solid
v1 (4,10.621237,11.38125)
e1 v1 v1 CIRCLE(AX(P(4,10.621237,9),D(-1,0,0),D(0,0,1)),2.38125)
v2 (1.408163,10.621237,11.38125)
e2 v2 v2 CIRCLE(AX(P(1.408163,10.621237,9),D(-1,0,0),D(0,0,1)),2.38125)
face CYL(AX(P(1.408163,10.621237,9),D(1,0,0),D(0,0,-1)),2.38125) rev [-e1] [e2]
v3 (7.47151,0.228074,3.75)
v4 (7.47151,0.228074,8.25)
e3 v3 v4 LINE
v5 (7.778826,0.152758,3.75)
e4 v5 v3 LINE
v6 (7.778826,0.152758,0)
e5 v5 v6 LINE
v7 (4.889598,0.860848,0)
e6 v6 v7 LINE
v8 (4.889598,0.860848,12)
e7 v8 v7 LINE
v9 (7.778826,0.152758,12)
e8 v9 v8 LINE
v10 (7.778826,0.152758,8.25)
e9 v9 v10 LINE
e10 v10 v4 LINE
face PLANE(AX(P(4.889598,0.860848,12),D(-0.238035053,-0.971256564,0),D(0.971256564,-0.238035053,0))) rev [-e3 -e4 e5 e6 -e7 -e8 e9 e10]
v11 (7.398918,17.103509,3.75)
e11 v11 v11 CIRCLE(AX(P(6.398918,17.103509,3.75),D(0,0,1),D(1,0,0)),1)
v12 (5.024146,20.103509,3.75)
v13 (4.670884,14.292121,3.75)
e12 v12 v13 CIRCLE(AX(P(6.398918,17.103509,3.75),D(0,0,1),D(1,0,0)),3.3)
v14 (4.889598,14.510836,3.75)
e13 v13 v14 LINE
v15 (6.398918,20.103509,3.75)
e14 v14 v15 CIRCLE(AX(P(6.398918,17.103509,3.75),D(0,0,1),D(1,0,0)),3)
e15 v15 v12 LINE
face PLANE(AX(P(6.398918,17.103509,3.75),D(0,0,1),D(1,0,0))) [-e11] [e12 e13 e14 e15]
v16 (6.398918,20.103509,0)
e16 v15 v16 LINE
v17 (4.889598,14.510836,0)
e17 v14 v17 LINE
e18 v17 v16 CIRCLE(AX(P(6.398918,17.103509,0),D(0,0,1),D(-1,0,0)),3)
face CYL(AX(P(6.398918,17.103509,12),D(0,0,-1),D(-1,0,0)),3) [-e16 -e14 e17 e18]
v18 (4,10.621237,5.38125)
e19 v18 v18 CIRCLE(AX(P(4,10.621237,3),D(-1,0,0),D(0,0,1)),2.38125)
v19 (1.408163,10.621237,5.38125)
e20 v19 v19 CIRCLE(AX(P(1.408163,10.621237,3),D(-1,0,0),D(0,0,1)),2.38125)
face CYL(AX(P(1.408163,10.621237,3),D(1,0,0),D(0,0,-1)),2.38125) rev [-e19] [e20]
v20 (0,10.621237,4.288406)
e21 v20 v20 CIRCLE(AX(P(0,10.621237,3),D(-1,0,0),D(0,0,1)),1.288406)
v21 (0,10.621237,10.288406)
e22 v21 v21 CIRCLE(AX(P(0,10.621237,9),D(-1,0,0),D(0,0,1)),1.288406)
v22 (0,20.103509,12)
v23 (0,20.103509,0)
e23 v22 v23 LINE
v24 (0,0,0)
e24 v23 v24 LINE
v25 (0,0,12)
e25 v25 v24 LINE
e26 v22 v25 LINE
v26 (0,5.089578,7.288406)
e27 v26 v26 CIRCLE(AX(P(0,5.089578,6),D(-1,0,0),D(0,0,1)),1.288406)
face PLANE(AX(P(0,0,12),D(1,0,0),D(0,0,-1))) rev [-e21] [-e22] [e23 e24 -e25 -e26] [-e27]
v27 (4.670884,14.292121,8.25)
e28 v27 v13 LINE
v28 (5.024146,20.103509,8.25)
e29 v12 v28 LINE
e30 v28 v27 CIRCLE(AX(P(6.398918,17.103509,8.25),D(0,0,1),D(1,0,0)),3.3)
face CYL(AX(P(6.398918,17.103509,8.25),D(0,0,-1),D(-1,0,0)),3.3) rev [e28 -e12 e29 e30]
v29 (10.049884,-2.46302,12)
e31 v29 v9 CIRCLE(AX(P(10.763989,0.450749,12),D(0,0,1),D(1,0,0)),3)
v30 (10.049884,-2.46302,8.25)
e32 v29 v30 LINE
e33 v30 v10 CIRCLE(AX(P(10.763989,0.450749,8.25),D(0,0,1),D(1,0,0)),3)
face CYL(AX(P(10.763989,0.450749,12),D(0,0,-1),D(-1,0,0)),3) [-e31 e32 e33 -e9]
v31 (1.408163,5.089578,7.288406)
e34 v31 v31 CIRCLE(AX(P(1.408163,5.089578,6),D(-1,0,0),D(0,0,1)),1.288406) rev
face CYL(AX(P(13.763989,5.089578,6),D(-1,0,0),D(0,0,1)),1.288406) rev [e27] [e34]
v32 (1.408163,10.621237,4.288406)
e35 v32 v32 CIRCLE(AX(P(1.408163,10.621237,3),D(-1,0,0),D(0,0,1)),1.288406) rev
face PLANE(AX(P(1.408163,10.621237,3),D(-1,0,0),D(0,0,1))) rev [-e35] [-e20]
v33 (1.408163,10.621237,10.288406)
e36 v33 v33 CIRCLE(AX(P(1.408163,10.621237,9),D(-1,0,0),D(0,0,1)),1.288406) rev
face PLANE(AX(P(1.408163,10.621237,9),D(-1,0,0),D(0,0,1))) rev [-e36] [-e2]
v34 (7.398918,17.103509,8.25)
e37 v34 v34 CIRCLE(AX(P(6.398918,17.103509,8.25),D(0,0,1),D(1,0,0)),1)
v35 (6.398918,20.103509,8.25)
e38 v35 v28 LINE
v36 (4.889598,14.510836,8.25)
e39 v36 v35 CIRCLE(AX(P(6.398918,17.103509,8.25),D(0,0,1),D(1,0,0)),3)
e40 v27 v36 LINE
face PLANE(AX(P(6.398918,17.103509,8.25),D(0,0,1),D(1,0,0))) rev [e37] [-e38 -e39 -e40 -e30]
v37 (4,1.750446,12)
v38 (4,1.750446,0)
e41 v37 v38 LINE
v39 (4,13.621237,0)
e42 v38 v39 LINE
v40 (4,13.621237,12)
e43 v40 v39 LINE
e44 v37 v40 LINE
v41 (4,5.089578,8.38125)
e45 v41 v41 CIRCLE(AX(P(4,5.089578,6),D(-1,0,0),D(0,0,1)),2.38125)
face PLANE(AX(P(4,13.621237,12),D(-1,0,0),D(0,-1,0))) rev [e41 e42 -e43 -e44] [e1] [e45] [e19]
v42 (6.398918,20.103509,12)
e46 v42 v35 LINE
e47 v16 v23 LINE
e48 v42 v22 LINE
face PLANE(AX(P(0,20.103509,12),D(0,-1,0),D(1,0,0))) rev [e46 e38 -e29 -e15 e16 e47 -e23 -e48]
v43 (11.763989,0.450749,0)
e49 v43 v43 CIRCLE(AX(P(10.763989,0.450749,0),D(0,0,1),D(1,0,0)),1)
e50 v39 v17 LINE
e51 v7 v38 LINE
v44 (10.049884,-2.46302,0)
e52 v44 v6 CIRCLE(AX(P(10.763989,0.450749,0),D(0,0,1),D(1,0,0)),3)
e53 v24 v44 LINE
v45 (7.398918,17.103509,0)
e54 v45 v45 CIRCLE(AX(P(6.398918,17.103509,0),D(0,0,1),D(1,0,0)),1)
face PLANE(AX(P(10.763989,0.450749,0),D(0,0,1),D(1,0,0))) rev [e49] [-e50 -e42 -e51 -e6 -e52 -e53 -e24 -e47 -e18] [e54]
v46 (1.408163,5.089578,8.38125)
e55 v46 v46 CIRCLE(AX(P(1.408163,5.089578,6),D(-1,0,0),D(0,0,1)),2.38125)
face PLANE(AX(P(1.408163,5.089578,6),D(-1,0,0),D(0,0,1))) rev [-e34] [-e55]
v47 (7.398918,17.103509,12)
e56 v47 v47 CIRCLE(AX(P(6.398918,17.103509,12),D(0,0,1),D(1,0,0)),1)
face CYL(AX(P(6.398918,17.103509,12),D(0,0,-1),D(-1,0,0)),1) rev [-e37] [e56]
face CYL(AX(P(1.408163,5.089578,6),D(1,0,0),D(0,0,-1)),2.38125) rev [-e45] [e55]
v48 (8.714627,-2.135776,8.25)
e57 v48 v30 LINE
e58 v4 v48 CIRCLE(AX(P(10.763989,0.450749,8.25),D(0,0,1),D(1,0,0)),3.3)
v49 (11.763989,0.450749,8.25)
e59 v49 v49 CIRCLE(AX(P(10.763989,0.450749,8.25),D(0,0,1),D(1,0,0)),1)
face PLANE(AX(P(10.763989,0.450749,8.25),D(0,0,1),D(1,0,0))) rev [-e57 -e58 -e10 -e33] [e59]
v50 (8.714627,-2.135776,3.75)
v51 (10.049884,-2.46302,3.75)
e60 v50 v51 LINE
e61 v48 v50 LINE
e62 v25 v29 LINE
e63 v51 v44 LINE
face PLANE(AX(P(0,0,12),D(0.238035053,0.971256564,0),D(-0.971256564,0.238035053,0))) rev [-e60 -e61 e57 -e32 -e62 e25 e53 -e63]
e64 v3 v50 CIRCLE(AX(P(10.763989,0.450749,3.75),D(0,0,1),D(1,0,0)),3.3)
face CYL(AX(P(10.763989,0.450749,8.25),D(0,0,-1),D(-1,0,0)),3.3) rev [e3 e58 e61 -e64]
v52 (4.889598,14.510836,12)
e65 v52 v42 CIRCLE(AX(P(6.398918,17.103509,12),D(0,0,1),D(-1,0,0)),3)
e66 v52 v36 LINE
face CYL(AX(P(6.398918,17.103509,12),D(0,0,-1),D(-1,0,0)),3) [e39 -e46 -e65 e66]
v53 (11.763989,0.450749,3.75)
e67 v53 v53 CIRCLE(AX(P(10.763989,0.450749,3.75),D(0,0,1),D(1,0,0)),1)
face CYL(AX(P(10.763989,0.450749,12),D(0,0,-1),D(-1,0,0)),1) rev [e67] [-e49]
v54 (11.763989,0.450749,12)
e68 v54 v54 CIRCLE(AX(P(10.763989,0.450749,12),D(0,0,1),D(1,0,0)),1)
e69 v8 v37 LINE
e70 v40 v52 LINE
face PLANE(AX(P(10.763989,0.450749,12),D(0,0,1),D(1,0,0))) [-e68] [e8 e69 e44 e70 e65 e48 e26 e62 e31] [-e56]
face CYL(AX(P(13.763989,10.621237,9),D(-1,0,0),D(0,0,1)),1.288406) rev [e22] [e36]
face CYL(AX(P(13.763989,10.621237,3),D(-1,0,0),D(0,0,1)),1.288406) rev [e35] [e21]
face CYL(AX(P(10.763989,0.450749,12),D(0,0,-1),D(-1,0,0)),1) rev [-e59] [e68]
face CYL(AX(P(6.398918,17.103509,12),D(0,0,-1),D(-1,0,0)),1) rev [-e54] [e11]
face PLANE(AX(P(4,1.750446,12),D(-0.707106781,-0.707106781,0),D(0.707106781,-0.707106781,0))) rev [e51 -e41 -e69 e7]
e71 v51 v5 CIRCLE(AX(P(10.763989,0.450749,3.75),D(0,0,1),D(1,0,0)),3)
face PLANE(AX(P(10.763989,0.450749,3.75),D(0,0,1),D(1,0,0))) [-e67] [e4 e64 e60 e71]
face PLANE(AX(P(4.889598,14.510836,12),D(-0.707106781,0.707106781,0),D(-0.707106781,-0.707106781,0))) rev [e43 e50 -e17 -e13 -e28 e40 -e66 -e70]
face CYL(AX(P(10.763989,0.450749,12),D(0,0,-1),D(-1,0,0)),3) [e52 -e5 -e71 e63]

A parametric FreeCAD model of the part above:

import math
import FreeCAD as App
import Part
import Sketcher

doc = App.newDocument("Part")
body = doc.addObject("PartDesign::Body", "Body")

sketch1 = doc.addObject("Sketcher::SketchObject", "Sketch")
body.addObject(sketch1)
sketch1.AttachmentSupport = (doc.XY_Plane, [""])
sketch1.MapMode = "FlatFace"
sketch1.addGeometry([
    Part.LineSegment(App.Vector(0, 20.103509, 0), App.Vector(0, 0, 0)),
    Part.LineSegment(App.Vector(0, 0, 0), App.Vector(10.049884, -2.46302, 0)),
    Part.ArcOfCircle(Part.Circle(App.Vector(10.763989, 0.450749, 0), App.Vector(0, 0, 1), 3), math.radians(-103.770597), math.radians(185.700624)),
    Part.LineSegment(App.Vector(7.778826, 0.152758, 0), App.Vector(4.889598, 0.860848, 0)),
    Part.LineSegment(App.Vector(4.889598, 0.860848, 0), App.Vector(4, 1.750446, 0)),
    Part.LineSegment(App.Vector(4, 1.750446, 0), App.Vector(4, 13.621237, 0)),
    Part.LineSegment(App.Vector(4, 13.621237, 0), App.Vector(4.889598, 14.510836, 0)),
    Part.ArcOfCircle(Part.Circle(App.Vector(6.398918, 17.103509, 0), App.Vector(0, 0, 1), 3), math.radians(-120.205751), math.radians(90)),
    Part.LineSegment(App.Vector(6.398918, 20.103509, 0), App.Vector(0, 20.103509, 0)),
    Part.Circle(App.Vector(10.763989, 0.450749, 0), App.Vector(0, 0, 1), 1),
    Part.Circle(App.Vector(6.398918, 17.103509, 0), App.Vector(0, 0, 1), 1),
], False)
sketch1.addConstraint([
    Sketcher.Constraint("Coincident", 0, 2, 1, 1),
    Sketcher.Constraint("Tangent", 1, 2, 2, 1),
    Sketcher.Constraint("Coincident", 2, 2, 3, 1),
    Sketcher.Constraint("Coincident", 3, 2, 4, 1),
    Sketcher.Constraint("Coincident", 4, 2, 5, 1),
    Sketcher.Constraint("Coincident", 5, 2, 6, 1),
    Sketcher.Constraint("Coincident", 6, 2, 7, 1),
    Sketcher.Constraint("Tangent", 7, 2, 8, 1),
    Sketcher.Constraint("Coincident", 8, 2, 0, 1),
    Sketcher.Constraint("Vertical", 0),
    Sketcher.Constraint("Vertical", 5),
    Sketcher.Constraint("Horizontal", 8),
    Sketcher.Constraint("Coincident", 0, 2, -1, 1),
    Sketcher.Constraint("Coincident", 9, 3, 2, 3),
    Sketcher.Constraint("Coincident", 10, 3, 7, 3),
    Sketcher.Constraint("Equal", 2, 7),
    Sketcher.Constraint("Equal", 9, 10),
    Sketcher.Constraint("Parallel", 1, 3),
    Sketcher.Constraint("Perpendicular", 4, 6),
    Sketcher.Constraint("Vertical", 3, 2, 6, 2),
    Sketcher.Constraint("Equal", 4, 6),
    Sketcher.Constraint("Diameter", 9, 2.0),
    Sketcher.Constraint("Radius", 2, 3.0),
    Sketcher.Constraint("DistanceX", -1, 1, 4, 2, 4.0),
    Sketcher.Constraint("Distance", 1, 10.347301),
    Sketcher.Constraint("DistanceX", 8, 2, 8, 1, 6.398918),
    Sketcher.Constraint("DistanceY", 0, 2, 0, 1, 20.103509),
    Sketcher.Constraint("DistanceY", 5, 1, 5, 2, 11.870791),
    Sketcher.Constraint("DistanceX", -1, 1, 3, 2, 4.889598),
    Sketcher.Constraint("DistanceY", 2, 3, 3, 2, 0.410099),
])
pad1 = doc.addObject("PartDesign::Pad", "Pad")
body.addObject(pad1)
pad1.Profile = sketch1
pad1.Length = 12

sketch2 = doc.addObject("Sketcher::SketchObject", "Sketch001")
body.addObject(sketch2)
sketch2.AttachmentSupport = (doc.XY_Plane, [""])
sketch2.MapMode = "FlatFace"
sketch2.AttachmentOffset = App.Placement(App.Vector(0, 0, 6), App.Rotation())
sketch2.addGeometry([
    Part.Circle(App.Vector(6.398918, 17.103509, 0), App.Vector(0, 0, 1), 3.3),
    Part.Circle(App.Vector(10.763989, 0.450749, 0), App.Vector(0, 0, 1), 3.3),
], False)
sketch2.addConstraint([
    Sketcher.Constraint("Equal", 0, 1),
    Sketcher.Constraint("Diameter", 0, 6.6),
    Sketcher.Constraint("DistanceX", -1, 1, 0, 3, 6.398918),
    Sketcher.Constraint("DistanceY", -1, 1, 0, 3, 17.103509),
    Sketcher.Constraint("DistanceX", -1, 1, 1, 3, 10.763989),
    Sketcher.Constraint("DistanceY", -1, 1, 1, 3, 0.450749),
])
pocket1 = doc.addObject("PartDesign::Pocket", "Pocket")
body.addObject(pocket1)
pocket1.Profile = sketch2
pocket1.Type = "TwoLengths"
pocket1.Length = 2.25
pocket1.Length2 = 2.25
pocket1.Reversed = True

sketch3 = doc.addObject("Sketcher::SketchObject", "Sketch002")
body.addObject(sketch3)
sketch3.AttachmentSupport = (doc.YZ_Plane, [""])
sketch3.MapMode = "FlatFace"
sketch3.AttachmentOffset = App.Placement(App.Vector(0, 0, 4), App.Rotation())
sketch3.addGeometry([
    Part.Circle(App.Vector(10.621237, 9, 0), App.Vector(0, 0, 1), 1.288406),
    Part.Circle(App.Vector(10.621237, 3, 0), App.Vector(0, 0, 1), 1.288406),
    Part.Circle(App.Vector(5.089578, 6, 0), App.Vector(0, 0, 1), 1.288406),
], False)
sketch3.addConstraint([
    Sketcher.Constraint("Equal", 0, 1),
    Sketcher.Constraint("Equal", 1, 2),
    Sketcher.Constraint("Vertical", 0, 3, 1, 3),
    Sketcher.Constraint("DistanceY", -1, 1, 0, 3, 9.0),
    Sketcher.Constraint("DistanceY", -1, 1, 1, 3, 3.0),
    Sketcher.Constraint("DistanceY", -1, 1, 2, 3, 6.0),
    Sketcher.Constraint("Diameter", 0, 2.576812),
    Sketcher.Constraint("DistanceX", 2, 3, 0, 3, 5.531659),
    Sketcher.Constraint("DistanceX", -1, 1, 0, 3, 10.621237),
])
pocket2 = doc.addObject("PartDesign::Pocket", "Pocket001")
body.addObject(pocket2)
pocket2.Profile = sketch3
pocket2.Type = "ThroughAll"
pocket2.Midplane = True

sketch4 = doc.addObject("Sketcher::SketchObject", "Sketch003")
body.addObject(sketch4)
sketch4.AttachmentSupport = (doc.YZ_Plane, [""])
sketch4.MapMode = "FlatFace"
sketch4.AttachmentOffset = App.Placement(App.Vector(0, 0, 4), App.Rotation())
sketch4.addGeometry([
    Part.Circle(App.Vector(5.089578, 6, 0), App.Vector(0, 0, 1), 2.38125),
    Part.Circle(App.Vector(10.621237, 9, 0), App.Vector(0, 0, 1), 2.38125),
    Part.Circle(App.Vector(10.621237, 3, 0), App.Vector(0, 0, 1), 2.38125),
], False)
sketch4.addConstraint([
    Sketcher.Constraint("Equal", 0, 1),
    Sketcher.Constraint("Equal", 1, 2),
    Sketcher.Constraint("Vertical", 1, 3, 2, 3),
    Sketcher.Constraint("DistanceY", -1, 1, 0, 3, 6.0),
    Sketcher.Constraint("DistanceY", -1, 1, 1, 3, 9.0),
    Sketcher.Constraint("DistanceY", -1, 1, 2, 3, 3.0),
    Sketcher.Constraint("Diameter", 0, 4.7625),
    Sketcher.Constraint("DistanceX", 0, 3, 1, 3, 5.531659),
    Sketcher.Constraint("DistanceX", -1, 1, 0, 3, 5.089578),
])
pocket3 = doc.addObject("PartDesign::Pocket", "Pocket002")
body.addObject(pocket3)
pocket3.Profile = sketch4
pocket3.Length = 2.591837

doc.recompute()
